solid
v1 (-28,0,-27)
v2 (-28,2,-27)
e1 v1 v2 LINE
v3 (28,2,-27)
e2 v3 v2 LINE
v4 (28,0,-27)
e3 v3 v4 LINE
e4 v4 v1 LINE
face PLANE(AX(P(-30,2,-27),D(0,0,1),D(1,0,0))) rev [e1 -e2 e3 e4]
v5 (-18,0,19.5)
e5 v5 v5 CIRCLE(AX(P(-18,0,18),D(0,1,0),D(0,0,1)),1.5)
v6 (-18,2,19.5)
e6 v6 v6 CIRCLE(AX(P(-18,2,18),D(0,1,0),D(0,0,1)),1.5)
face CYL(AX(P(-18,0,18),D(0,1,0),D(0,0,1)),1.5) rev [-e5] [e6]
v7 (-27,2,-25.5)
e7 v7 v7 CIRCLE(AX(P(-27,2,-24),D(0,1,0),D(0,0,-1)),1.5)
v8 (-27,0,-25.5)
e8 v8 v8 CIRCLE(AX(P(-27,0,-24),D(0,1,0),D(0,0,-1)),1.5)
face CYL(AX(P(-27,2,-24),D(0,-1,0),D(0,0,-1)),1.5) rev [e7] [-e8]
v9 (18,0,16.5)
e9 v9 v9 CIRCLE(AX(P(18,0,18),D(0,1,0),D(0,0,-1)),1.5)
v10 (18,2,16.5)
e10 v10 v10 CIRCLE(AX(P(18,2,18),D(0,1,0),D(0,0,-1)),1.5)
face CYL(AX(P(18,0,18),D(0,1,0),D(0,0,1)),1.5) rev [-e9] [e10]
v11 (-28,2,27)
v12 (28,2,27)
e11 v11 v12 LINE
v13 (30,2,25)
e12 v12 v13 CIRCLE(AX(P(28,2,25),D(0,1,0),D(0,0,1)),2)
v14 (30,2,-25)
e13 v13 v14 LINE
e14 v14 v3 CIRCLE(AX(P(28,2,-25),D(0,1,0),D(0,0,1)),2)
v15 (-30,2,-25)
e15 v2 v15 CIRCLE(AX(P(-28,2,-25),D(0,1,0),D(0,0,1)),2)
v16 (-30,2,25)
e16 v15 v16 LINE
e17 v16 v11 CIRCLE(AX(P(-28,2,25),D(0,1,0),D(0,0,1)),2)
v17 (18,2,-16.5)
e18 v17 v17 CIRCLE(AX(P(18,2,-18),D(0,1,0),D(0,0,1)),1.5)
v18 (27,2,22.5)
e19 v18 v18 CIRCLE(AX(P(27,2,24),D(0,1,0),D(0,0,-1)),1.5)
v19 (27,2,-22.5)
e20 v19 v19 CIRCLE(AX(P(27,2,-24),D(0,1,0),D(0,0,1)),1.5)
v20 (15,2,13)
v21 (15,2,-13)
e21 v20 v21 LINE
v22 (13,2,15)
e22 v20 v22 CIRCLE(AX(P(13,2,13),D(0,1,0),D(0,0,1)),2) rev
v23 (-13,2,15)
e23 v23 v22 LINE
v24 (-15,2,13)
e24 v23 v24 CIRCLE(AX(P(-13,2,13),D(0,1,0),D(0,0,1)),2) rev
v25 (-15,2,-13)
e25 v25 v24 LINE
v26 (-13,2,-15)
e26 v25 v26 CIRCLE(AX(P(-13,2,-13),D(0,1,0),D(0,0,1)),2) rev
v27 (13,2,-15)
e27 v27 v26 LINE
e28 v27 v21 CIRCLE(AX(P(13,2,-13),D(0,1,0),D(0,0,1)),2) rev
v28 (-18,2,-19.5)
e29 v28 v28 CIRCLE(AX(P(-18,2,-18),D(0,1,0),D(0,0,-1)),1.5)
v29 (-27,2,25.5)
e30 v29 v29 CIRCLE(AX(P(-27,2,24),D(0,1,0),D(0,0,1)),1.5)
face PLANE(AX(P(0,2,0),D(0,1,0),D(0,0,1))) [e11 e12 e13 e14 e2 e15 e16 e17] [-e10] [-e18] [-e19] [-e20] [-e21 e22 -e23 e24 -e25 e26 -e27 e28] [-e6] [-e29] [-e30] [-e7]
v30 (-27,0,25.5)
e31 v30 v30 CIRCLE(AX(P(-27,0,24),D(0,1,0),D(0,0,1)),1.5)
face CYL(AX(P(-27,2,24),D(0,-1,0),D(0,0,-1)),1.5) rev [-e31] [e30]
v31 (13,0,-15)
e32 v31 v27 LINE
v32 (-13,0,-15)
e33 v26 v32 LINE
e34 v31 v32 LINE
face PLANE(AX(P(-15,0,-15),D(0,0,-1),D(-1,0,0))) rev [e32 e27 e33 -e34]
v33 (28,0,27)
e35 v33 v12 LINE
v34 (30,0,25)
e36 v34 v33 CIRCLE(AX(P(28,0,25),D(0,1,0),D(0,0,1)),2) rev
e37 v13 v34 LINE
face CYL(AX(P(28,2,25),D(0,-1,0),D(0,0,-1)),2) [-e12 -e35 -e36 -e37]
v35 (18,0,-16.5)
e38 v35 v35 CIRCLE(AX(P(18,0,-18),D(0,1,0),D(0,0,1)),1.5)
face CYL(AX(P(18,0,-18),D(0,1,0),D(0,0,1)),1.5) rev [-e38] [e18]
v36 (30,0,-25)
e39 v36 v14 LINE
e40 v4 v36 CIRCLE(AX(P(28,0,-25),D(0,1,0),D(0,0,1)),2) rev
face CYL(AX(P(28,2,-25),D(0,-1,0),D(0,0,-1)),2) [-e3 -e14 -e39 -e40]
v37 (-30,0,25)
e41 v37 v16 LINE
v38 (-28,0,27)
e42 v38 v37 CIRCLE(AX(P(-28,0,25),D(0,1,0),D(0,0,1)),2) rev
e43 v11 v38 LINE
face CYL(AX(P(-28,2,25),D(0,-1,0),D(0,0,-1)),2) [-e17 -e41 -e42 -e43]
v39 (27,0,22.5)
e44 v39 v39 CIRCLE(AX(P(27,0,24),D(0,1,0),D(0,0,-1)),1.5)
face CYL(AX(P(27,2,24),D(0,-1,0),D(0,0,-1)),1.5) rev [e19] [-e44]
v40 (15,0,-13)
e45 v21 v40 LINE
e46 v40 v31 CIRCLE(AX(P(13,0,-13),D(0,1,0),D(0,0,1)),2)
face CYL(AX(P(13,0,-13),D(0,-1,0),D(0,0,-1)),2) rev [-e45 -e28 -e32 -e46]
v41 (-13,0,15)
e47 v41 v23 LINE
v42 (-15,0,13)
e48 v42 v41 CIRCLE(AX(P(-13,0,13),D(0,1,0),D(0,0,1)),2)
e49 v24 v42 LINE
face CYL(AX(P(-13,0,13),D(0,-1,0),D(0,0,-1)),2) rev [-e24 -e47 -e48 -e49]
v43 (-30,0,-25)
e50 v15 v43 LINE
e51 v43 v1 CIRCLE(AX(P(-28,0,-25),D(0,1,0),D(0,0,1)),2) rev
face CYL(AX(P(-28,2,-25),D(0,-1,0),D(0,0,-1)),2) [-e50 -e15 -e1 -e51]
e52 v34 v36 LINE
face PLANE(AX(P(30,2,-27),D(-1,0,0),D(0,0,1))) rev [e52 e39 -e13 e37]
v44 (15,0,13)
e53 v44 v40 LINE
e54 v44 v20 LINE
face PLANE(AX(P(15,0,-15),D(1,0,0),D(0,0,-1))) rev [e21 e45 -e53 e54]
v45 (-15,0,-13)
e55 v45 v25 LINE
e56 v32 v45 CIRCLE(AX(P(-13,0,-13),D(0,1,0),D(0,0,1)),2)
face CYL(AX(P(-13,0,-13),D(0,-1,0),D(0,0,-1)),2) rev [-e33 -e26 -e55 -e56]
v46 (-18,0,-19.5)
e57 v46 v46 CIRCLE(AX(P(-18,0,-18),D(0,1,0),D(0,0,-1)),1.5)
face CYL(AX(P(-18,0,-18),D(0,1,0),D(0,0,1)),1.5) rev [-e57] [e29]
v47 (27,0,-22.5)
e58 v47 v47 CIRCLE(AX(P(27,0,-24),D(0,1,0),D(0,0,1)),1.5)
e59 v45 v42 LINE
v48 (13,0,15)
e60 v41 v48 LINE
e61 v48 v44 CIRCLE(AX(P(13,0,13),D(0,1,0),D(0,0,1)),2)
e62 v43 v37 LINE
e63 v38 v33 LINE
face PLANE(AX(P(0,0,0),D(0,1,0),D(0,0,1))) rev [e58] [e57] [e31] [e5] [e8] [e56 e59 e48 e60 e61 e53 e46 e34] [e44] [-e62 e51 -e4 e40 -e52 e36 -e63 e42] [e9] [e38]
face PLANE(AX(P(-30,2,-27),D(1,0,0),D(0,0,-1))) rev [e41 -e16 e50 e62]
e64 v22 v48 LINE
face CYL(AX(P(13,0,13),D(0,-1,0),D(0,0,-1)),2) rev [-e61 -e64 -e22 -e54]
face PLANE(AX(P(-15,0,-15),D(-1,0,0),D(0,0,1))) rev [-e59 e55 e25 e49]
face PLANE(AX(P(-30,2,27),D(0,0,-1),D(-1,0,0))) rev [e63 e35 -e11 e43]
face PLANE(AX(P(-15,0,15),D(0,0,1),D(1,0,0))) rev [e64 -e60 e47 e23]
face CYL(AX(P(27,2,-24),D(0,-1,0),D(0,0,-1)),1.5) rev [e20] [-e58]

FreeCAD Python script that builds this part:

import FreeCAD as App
import Part
import Sketcher


def edges_at(feature, points):
    """Names of the edges that pass closest to the given points."""
    edges = feature.Shape.Edges
    near = lambda p: min(range(len(edges)), key=lambda i: edges[i].distToShape(Part.Vertex(*p))[0])
    return sorted({f"Edge{near(p) + 1}" for p in points})

doc = App.newDocument("Part")
body = doc.addObject("PartDesign::Body", "Body")

# Sketch on XZ plane
sketch1 = body.newObject("Sketcher::SketchObject", "Sketch")
sketch1.AttachmentSupport = (doc.getObject("XZ_Plane"), [""])
sketch1.MapMode = "FlatFace"
sketch1.addGeometry([
    Part.LineSegment(App.Vector(-30, -27, 0), App.Vector(-30, 27, 0)),  # 0
    Part.LineSegment(App.Vector(-30, 27, 0), App.Vector(30, 27, 0)),  # 1
    Part.LineSegment(App.Vector(30, 27, 0), App.Vector(30, -27, 0)),  # 2
    Part.LineSegment(App.Vector(30, -27, 0), App.Vector(-30, -27, 0)),  # 3
    Part.Circle(App.Vector(-27, 24, 0), App.Vector(0, 0, 1), 1.5),  # 4
    Part.Circle(App.Vector(27, 24, 0), App.Vector(0, 0, 1), 1.5),  # 5
    Part.Circle(App.Vector(-27, -24, 0), App.Vector(0, 0, 1), 1.5),  # 6
    Part.Circle(App.Vector(27, -24, 0), App.Vector(0, 0, 1), 1.5),  # 7
], False)
sketch1.addConstraint([
    Sketcher.Constraint("Coincident", 0, 2, 1, 1),
    Sketcher.Constraint("Coincident", 1, 2, 2, 1),
    Sketcher.Constraint("Coincident", 2, 2, 3, 1),
    Sketcher.Constraint("Coincident", 3, 2, 0, 1),
    Sketcher.Constraint("Vertical", 0),
    Sketcher.Constraint("Horizontal", 1),
    Sketcher.Constraint("Vertical", 2),
    Sketcher.Constraint("Horizontal", 3),
    Sketcher.Constraint("Equal", 4, 5),
    Sketcher.Constraint("Equal", 5, 6),
    Sketcher.Constraint("Equal", 6, 7),
    Sketcher.Constraint("Symmetric", 5, 3, 6, 3, -1, 1),
    Sketcher.Constraint("Symmetric", 4, 3, 7, 3, -1, 1),
    Sketcher.Constraint("Symmetric", 0, 2, 2, 2, -1, 1),
    Sketcher.Constraint("Symmetric", 4, 3, 5, 3, -2),
    Sketcher.Constraint("Diameter", 4, 3.0),
    Sketcher.Constraint("DistanceX", 1, 1, 1, 2, 60.0),
    Sketcher.Constraint("DistanceY", 0, 1, 0, 2, 54.0),
    Sketcher.Constraint("DistanceX", 4, 3, -1, 1, 27.0),
    Sketcher.Constraint("DistanceY", -1, 1, 4, 3, 24.0),
])
pad1 = body.newObject("PartDesign::Pad", "Pad")
pad1.Profile = sketch1
pad1.Length = 2
pad1.Reversed = True

# Sketch on XZ plane
sketch2 = body.newObject("Sketcher::SketchObject", "Sketch001")
sketch2.AttachmentSupport = (doc.getObject("XZ_Plane"), [""])
sketch2.MapMode = "FlatFace"
sketch2.AttachmentOffset = App.Placement(App.Vector(0, 0, -2), App.Rotation())
sketch2.addGeometry([
    Part.Circle(App.Vector(18, -18, 0), App.Vector(0, 0, 1), 1.5),
    Part.Circle(App.Vector(-18, -18, 0), App.Vector(0, 0, 1), 1.5),
    Part.Circle(App.Vector(18, 18, 0), App.Vector(0, 0, 1), 1.5),
    Part.Circle(App.Vector(-18, 18, 0), App.Vector(0, 0, 1), 1.5),
], False)
sketch2.addConstraint([
    Sketcher.Constraint("Equal", 0, 1),
    Sketcher.Constraint("Equal", 1, 2),
    Sketcher.Constraint("Equal", 2, 3),
    Sketcher.Constraint("Symmetric", 1, 3, 2, 3, -1, 1),
    Sketcher.Constraint("Symmetric", 0, 3, 3, 3, -1, 1),
    Sketcher.Constraint("Symmetric", 0, 3, 1, 3, -2),
    Sketcher.Constraint("Diameter", 0, 3.0),
    Sketcher.Constraint("DistanceX", -1, 1, 0, 3, 18.0),
    Sketcher.Constraint("DistanceY", 0, 3, -1, 1, 18.0),
])
pocket1 = body.newObject("PartDesign::Pocket", "Pocket")
pocket1.Profile = sketch2
pocket1.Length = 2
pocket1.Reversed = True
doc.recompute()

fillet = body.newObject("PartDesign::Fillet", "Fillet")
fillet.Base = (pocket1, edges_at(pocket1, [
    (30, 1, 27),
    (-30, 1, 27),
    (-30, 1, -27),
    (30, 1, -27),
]))
fillet.Radius = 2

# Sketch on XZ plane
sketch3 = body.newObject("Sketcher::SketchObject", "Sketch002")
sketch3.AttachmentSupport = (doc.getObject("XZ_Plane"), [""])
sketch3.MapMode = "FlatFace"
sketch3.AttachmentOffset = App.Placement(App.Vector(0, 0, -2), App.Rotation())
sketch3.addGeometry([
    Part.LineSegment(App.Vector(-15, -15, 0), App.Vector(-15, 15, 0)),
    Part.LineSegment(App.Vector(-15, 15, 0), App.Vector(15, 15, 0)),
    Part.LineSegment(App.Vector(15, 15, 0), App.Vector(15, -15, 0)),
    Part.LineSegment(App.Vector(15, -15, 0), App.Vector(-15, -15, 0)),
], False)
sketch3.addConstraint([
    Sketcher.Constraint("Coincident", 0, 2, 1, 1),
    Sketcher.Constraint("Coincident", 1, 2, 2, 1),
    Sketcher.Constraint("Coincident", 2, 2, 3, 1),
    Sketcher.Constraint("Coincident", 3, 2, 0, 1),
    Sketcher.Constraint("Vertical", 0),
    Sketcher.Constraint("Horizontal", 1),
    Sketcher.Constraint("Vertical", 2),
    Sketcher.Constraint("Horizontal", 3),
    Sketcher.Constraint("Symmetric", 0, 2, 2, 2, -1, 1),
    Sketcher.Constraint("Equal", 3, 0),
    Sketcher.Constraint("DistanceX", 1, 1, 1, 2, 30.0),
])
pocket2 = body.newObject("PartDesign::Pocket", "Pocket001")
pocket2.Profile = sketch3
pocket2.Length = 2
pocket2.Reversed = True
doc.recompute()

fillet2 = body.newObject("PartDesign::Fillet", "Fillet001")
fillet2.Base = (pocket2, edges_at(pocket2, [
    (15, 1, -15),
    (15, 1, 15),
    (-15, 1, 15),
    (-15, 1, -15),
]))
fillet2.Radius = 2

doc.recompute()
